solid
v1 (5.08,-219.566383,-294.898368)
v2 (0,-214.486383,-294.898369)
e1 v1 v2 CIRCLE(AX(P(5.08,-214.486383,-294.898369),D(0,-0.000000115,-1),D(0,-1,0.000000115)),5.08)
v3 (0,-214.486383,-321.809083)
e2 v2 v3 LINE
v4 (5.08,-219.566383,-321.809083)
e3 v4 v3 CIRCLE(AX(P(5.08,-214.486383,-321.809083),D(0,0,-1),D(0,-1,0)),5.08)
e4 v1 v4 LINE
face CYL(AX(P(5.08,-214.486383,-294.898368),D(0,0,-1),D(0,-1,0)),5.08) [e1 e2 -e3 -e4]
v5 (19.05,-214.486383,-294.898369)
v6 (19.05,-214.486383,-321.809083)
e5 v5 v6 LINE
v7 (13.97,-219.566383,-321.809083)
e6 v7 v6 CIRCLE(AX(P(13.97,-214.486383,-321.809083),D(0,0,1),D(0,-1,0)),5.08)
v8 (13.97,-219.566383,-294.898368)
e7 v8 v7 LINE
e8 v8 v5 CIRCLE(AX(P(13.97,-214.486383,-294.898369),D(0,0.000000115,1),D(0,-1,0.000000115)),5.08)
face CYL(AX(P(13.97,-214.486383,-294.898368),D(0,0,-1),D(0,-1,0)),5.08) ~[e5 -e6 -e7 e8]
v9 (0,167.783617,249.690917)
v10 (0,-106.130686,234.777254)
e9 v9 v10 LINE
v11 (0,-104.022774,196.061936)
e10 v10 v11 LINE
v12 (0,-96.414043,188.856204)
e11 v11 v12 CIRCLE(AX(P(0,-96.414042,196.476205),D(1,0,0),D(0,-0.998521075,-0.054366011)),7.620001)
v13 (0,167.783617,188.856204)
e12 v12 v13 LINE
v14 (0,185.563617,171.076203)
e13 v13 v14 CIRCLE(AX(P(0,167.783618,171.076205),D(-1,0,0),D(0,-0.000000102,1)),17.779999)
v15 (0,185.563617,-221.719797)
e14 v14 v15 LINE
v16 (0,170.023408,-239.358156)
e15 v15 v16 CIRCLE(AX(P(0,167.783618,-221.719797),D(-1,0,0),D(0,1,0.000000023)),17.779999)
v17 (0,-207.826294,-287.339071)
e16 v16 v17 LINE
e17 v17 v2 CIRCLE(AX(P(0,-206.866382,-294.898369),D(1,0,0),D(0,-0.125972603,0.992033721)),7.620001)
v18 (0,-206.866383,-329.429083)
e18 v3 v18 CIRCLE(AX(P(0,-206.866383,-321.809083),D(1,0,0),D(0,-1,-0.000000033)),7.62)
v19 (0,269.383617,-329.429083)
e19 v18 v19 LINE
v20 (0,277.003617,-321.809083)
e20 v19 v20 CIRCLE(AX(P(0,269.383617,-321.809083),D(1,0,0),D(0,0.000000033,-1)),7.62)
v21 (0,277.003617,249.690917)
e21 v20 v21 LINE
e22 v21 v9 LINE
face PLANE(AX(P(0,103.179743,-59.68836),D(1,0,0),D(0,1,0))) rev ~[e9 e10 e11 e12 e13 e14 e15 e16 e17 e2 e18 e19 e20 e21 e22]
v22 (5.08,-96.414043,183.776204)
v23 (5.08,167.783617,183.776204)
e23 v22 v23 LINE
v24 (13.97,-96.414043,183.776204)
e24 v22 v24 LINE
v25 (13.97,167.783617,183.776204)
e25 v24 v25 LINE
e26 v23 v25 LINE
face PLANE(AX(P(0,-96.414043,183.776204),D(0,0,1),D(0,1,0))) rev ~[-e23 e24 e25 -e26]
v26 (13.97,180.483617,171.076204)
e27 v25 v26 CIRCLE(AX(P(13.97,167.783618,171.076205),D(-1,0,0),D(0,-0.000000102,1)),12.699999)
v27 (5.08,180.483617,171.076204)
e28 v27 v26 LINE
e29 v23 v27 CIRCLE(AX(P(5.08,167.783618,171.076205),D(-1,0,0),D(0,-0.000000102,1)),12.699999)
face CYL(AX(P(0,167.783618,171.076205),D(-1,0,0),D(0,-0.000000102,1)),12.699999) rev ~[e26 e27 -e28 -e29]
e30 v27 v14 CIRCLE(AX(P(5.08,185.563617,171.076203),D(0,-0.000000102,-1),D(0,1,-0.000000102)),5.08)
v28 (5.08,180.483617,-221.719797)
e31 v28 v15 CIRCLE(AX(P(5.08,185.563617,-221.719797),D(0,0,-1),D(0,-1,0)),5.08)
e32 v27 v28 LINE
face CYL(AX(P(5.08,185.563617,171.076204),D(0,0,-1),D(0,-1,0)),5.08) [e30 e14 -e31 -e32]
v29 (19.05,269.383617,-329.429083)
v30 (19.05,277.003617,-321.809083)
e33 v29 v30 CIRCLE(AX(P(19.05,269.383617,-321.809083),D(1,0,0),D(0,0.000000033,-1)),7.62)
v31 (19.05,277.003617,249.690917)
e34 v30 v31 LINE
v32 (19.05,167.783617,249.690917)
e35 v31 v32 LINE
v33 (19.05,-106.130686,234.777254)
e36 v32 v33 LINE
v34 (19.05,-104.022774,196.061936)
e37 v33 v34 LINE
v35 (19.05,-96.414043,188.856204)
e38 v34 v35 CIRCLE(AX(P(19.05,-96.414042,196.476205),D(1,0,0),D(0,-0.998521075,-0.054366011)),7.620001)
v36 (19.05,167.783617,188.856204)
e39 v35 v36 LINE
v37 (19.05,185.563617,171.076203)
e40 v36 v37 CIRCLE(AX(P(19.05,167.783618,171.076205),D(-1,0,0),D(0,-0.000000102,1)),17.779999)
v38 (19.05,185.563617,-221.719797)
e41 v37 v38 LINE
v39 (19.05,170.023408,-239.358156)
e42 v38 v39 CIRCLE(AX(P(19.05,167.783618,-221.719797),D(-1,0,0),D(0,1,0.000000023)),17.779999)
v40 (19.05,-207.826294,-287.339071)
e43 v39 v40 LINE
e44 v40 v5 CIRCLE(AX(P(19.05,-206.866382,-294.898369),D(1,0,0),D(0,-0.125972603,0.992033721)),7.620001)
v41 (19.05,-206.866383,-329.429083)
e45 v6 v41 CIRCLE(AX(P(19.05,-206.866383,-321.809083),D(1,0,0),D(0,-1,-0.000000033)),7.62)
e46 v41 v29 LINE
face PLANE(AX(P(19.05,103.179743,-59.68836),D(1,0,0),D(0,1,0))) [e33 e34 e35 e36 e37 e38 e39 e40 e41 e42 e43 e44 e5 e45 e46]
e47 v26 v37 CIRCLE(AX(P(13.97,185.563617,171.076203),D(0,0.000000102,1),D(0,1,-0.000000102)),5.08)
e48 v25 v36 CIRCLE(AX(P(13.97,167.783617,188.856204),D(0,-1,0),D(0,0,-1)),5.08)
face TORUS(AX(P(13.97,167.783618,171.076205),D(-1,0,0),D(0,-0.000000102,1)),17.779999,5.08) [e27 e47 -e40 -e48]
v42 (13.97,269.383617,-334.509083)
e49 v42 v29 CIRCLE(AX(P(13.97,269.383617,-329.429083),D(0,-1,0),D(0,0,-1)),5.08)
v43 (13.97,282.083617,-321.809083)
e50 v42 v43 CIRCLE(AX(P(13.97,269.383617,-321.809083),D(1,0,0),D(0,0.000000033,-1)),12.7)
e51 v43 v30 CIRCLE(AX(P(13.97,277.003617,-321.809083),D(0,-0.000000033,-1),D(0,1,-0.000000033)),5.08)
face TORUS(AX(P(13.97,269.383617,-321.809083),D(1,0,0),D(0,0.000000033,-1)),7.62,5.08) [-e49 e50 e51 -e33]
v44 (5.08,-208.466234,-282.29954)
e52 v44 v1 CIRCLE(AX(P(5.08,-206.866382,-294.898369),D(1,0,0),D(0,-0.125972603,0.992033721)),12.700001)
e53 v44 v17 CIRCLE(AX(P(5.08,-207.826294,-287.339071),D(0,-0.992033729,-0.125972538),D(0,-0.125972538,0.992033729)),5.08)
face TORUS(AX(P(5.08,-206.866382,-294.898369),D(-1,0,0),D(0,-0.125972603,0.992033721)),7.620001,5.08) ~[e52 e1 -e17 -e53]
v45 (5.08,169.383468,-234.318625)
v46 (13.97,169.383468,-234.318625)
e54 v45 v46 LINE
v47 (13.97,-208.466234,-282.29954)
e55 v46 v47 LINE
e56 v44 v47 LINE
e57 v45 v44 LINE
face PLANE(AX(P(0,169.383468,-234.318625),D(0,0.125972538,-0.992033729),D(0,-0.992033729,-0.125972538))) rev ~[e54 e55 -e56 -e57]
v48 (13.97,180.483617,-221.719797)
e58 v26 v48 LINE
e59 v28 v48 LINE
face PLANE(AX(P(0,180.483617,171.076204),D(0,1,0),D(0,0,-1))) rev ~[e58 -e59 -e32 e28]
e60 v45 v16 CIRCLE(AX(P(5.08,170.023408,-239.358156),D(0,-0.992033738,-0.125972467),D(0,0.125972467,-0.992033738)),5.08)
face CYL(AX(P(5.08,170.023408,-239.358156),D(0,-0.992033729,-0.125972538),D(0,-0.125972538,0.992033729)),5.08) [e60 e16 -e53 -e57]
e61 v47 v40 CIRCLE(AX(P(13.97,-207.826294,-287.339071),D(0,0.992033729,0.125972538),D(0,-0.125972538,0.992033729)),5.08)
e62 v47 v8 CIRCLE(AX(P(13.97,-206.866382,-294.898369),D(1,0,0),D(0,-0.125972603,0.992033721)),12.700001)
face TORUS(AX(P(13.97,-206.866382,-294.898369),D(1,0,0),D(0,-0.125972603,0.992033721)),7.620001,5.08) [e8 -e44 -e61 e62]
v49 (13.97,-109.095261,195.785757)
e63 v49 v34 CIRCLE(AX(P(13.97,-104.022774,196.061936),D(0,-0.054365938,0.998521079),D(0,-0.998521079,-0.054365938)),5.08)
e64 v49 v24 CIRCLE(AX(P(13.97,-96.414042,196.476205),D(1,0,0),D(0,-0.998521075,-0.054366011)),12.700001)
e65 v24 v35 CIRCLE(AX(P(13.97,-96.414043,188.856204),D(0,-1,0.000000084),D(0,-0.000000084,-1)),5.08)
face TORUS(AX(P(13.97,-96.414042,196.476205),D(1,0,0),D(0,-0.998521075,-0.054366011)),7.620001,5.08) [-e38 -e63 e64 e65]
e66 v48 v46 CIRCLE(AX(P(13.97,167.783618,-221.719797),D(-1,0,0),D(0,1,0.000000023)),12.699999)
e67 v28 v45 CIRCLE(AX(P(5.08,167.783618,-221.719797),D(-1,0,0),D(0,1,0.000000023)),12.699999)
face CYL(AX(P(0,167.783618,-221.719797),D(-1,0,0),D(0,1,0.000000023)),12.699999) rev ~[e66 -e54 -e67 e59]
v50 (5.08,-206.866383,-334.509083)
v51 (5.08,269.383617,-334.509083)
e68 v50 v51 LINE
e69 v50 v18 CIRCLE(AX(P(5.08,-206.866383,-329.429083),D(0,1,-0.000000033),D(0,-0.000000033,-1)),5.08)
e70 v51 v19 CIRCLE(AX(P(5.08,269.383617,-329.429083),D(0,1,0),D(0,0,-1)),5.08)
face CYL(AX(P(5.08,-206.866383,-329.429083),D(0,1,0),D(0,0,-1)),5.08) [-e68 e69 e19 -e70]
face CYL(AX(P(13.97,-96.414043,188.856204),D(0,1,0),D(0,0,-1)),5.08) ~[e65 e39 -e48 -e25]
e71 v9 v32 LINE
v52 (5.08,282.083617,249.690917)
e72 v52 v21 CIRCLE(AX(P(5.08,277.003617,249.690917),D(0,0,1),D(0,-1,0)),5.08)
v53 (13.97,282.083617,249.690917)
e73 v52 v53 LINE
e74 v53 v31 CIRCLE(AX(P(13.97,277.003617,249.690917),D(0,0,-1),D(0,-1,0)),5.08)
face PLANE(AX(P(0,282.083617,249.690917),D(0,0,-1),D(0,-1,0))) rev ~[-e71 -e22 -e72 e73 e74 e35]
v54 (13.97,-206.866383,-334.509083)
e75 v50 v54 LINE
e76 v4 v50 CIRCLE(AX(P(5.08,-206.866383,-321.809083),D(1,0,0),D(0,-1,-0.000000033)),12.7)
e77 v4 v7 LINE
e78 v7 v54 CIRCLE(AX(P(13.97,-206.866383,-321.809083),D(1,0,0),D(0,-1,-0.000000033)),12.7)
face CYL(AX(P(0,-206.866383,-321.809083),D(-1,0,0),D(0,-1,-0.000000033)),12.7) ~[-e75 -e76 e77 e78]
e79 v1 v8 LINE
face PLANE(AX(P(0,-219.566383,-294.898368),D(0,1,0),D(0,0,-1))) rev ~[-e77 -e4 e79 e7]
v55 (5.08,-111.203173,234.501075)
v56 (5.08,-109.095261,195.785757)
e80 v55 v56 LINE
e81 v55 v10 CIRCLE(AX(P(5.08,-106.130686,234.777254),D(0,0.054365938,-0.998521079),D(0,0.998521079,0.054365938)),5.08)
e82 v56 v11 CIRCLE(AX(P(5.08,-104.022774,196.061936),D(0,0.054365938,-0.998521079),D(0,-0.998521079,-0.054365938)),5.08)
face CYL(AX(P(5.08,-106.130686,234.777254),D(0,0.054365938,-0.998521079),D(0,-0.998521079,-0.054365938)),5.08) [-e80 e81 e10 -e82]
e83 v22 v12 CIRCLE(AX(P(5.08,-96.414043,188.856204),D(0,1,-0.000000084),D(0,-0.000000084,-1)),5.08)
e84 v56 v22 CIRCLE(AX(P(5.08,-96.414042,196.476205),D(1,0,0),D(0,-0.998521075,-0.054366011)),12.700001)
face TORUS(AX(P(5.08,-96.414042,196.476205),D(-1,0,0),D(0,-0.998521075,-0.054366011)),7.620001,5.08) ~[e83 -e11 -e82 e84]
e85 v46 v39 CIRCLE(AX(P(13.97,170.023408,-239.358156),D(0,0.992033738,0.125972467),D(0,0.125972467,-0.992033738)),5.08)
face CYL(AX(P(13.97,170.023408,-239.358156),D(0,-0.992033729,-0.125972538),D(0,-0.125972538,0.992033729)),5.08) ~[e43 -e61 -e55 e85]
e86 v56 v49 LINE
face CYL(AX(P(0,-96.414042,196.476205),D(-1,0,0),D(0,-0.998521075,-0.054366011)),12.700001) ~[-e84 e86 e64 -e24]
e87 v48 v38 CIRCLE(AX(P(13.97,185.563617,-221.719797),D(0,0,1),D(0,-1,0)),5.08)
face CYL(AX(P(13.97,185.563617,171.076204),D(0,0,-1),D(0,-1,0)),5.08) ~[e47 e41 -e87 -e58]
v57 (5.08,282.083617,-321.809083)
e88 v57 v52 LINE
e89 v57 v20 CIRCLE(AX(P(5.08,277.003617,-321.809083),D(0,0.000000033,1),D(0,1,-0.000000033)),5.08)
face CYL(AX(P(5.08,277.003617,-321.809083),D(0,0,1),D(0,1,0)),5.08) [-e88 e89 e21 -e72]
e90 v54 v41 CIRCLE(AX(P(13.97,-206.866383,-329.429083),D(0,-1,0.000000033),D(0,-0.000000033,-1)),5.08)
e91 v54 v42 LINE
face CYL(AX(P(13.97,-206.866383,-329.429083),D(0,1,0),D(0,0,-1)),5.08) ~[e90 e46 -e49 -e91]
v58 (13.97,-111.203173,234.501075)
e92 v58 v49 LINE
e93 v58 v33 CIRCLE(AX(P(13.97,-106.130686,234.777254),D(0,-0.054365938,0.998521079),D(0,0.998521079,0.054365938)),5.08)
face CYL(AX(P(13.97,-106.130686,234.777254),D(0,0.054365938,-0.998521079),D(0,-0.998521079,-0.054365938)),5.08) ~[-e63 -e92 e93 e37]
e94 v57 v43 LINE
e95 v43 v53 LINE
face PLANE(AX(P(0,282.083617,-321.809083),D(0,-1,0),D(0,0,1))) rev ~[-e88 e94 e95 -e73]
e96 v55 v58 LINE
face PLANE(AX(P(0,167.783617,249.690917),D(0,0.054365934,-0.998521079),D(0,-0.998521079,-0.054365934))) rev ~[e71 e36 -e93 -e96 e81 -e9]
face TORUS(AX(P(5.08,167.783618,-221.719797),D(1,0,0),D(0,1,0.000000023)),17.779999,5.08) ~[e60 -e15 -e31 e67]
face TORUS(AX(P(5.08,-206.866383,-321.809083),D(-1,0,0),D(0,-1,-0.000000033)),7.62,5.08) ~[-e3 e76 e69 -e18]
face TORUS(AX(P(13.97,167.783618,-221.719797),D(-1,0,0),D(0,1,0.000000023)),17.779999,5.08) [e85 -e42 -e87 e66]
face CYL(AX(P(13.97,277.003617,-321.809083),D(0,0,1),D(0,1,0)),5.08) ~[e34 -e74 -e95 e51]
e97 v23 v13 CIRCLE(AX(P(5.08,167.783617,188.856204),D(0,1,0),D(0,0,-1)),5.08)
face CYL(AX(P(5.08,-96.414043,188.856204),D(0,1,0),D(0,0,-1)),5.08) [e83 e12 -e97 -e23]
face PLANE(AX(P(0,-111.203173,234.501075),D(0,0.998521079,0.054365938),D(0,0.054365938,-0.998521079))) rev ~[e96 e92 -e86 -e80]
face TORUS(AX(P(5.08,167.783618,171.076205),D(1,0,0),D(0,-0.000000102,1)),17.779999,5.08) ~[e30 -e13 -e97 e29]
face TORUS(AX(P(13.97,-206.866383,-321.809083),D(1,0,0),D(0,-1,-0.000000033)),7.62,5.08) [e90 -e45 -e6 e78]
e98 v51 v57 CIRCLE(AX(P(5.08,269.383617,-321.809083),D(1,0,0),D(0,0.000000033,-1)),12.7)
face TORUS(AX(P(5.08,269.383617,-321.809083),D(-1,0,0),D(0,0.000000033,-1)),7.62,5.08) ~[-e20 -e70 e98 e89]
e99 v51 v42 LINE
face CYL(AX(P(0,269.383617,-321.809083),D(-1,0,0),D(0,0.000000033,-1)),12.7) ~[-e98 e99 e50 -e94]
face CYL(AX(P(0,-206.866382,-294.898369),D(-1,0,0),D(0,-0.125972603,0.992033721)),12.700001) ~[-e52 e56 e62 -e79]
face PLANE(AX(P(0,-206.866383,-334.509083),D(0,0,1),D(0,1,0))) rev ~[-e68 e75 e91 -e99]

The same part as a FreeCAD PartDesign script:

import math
import FreeCAD as App
import Part
import Sketcher

V = App.Vector
Q = App.Units.Quantity


def edges_at(feature, points):
    """Names of the edges that pass closest to the given points."""
    edges = feature.Shape.Edges
    near = lambda p: min(range(len(edges)), key=lambda i: edges[i].distToShape(Part.Vertex(*p))[0])
    return sorted({f"Edge{near(p) + 1}" for p in points})

doc = App.newDocument("Part")
body = doc.addObject("PartDesign::Body", "Body")

# Sketch on YZ plane
sketch1 = body.newObject("Sketcher::SketchObject", "Sketch")
sketch1.AttachmentSupport = (doc.getObject("YZ_Plane"), [""])
sketch1.MapMode = "FlatFace"
sketch1.addGeometry([
    Part.ArcOfCircle(Part.Circle(V(269.383617, -321.809083, 0), V(0, 0, 1), 12.7), math.radians(-89.999998), math.radians(-0.000002)),  # 0
    Part.LineSegment(V(282.083617, -321.809083, 0), V(282.083617, 249.690917, 0)),  # 1
    Part.LineSegment(V(282.083617, 249.690917, 0), V(167.783617, 249.690917, 0)),  # 2
    Part.LineSegment(V(167.783617, 249.690917, 0), V(-111.203173, 234.501075, 0)),  # 3
    Part.LineSegment(V(-111.203173, 234.501075, 0), V(-109.095261, 195.785757, 0)),  # 4
    Part.ArcOfCircle(Part.Circle(V(-96.414042, 196.476205, 0), V(0, 0, 1), 12.700001), math.radians(-176.883521), math.radians(-90.000005)),  # 5
    Part.LineSegment(V(-96.414043, 183.776204, 0), V(167.783617, 183.776204, 0)),  # 6
    Part.ArcOfCircle(Part.Circle(V(167.783618, 171.076205, 0), V(0, 0, 1), 12.699999), math.radians(-0.000006), math.radians(90.000006)),  # 7
    Part.LineSegment(V(180.483617, 171.076204, 0), V(180.483617, -221.719797, 0)),  # 8
    Part.ArcOfCircle(Part.Circle(V(167.783618, -221.719797, 0), V(0, 0, 1), 12.699999), math.radians(-82.763082), math.radians(0.000001)),  # 9
    Part.LineSegment(V(169.383468, -234.318625, 0), V(-208.466234, -282.29954, 0)),  # 10
    Part.ArcOfCircle(Part.Circle(V(-206.866382, -294.898369, 0), V(0, 0, 1), 12.700001), math.radians(97.236926), math.radians(179.999993)),  # 11
    Part.LineSegment(V(-219.566383, -294.898368, 0), V(-219.566383, -321.809083, 0)),  # 12
    Part.ArcOfCircle(Part.Circle(V(-206.866383, -321.809083, 0), V(0, 0, 1), 12.7), math.radians(-179.999998), math.radians(-90.000002)),  # 13
    Part.LineSegment(V(-206.866383, -334.509083, 0), V(269.383617, -334.509083, 0)),  # 14
], False)
sketch1.addConstraint([
    Sketcher.Constraint("Tangent", 0, 2, 1, 1),
    Sketcher.Constraint("Coincident", 1, 2, 2, 1),
    Sketcher.Constraint("Coincident", 2, 2, 3, 1),
    Sketcher.Constraint("Coincident", 3, 2, 4, 1),
    Sketcher.Constraint("Tangent", 4, 2, 5, 1),
    Sketcher.Constraint("Tangent", 5, 2, 6, 1),
    Sketcher.Constraint("Tangent", 6, 2, 7, 2),
    Sketcher.Constraint("Tangent", 7, 1, 8, 1),
    Sketcher.Constraint("Tangent", 8, 2, 9, 2),
    Sketcher.Constraint("Tangent", 9, 1, 10, 1),
    Sketcher.Constraint("Tangent", 10, 2, 11, 1),
    Sketcher.Constraint("Tangent", 11, 2, 12, 1),
    Sketcher.Constraint("Tangent", 12, 2, 13, 1),
    Sketcher.Constraint("Tangent", 13, 2, 14, 1),
    Sketcher.Constraint("Tangent", 14, 2, 0, 1),
    Sketcher.Constraint("Vertical", 1),
    Sketcher.Constraint("Horizontal", 2),
    Sketcher.Constraint("Horizontal", 6),
    Sketcher.Constraint("Vertical", 8),
    Sketcher.Constraint("Vertical", 12),
    Sketcher.Constraint("Horizontal", 14),
    Sketcher.Constraint("Equal", 0, 5),
    Sketcher.Constraint("Equal", 0, 7),
    Sketcher.Constraint("Equal", 7, 9),
    Sketcher.Constraint("Equal", 9, 11),
    Sketcher.Constraint("Equal", 11, 13),
    Sketcher.Constraint("Perpendicular", 3, 4),
    Sketcher.Constraint("Vertical", 9, 3, 2, 2),
    Sketcher.Constraint("Radius", 0, Q("0.5 in")),
    Sketcher.Constraint("Distance", 3, Q("11 in")),
    Sketcher.Constraint("DistanceX", 2, 2, 2, 1, Q("4.5 in")),
    Sketcher.Constraint("DistanceY", 1, 1, 1, 2, Q("22.5 in")),
    Sketcher.Constraint("DistanceX", 14, 1, 14, 2, Q("18.75 in")),
    Sketcher.Constraint("DistanceY", 8, 2, 8, 1, Q("392.796001 mm")),
    Sketcher.Constraint("DistanceX", 6, 1, 6, 2, Q("264.19766 mm")),
    Sketcher.Constraint("DistanceX", 10, 2, 9, 1, Q("377.849702 mm")),
    Sketcher.Constraint("Distance", 4, Q("38.77266 mm")),
    Sketcher.Constraint("DistanceX", 5, 3, -1, 1, Q("96.414042 mm")),
    Sketcher.Constraint("DistanceY", 11, 3, -1, 1, Q("294.898369 mm")),
])
pad1 = body.newObject("PartDesign::Pad", "Pad")
pad1.Profile = sketch1
pad1.Length = Q("0.75 in")
doc.recompute()

fillet = body.newObject("PartDesign::Fillet", "Fillet")
fillet.Base = (pad1, edges_at(pad1, [(19.05, -110.149, 215.143), (0, -110.149, 215.143)]))
fillet.Radius = Q("0.2 in")

doc.recompute()
